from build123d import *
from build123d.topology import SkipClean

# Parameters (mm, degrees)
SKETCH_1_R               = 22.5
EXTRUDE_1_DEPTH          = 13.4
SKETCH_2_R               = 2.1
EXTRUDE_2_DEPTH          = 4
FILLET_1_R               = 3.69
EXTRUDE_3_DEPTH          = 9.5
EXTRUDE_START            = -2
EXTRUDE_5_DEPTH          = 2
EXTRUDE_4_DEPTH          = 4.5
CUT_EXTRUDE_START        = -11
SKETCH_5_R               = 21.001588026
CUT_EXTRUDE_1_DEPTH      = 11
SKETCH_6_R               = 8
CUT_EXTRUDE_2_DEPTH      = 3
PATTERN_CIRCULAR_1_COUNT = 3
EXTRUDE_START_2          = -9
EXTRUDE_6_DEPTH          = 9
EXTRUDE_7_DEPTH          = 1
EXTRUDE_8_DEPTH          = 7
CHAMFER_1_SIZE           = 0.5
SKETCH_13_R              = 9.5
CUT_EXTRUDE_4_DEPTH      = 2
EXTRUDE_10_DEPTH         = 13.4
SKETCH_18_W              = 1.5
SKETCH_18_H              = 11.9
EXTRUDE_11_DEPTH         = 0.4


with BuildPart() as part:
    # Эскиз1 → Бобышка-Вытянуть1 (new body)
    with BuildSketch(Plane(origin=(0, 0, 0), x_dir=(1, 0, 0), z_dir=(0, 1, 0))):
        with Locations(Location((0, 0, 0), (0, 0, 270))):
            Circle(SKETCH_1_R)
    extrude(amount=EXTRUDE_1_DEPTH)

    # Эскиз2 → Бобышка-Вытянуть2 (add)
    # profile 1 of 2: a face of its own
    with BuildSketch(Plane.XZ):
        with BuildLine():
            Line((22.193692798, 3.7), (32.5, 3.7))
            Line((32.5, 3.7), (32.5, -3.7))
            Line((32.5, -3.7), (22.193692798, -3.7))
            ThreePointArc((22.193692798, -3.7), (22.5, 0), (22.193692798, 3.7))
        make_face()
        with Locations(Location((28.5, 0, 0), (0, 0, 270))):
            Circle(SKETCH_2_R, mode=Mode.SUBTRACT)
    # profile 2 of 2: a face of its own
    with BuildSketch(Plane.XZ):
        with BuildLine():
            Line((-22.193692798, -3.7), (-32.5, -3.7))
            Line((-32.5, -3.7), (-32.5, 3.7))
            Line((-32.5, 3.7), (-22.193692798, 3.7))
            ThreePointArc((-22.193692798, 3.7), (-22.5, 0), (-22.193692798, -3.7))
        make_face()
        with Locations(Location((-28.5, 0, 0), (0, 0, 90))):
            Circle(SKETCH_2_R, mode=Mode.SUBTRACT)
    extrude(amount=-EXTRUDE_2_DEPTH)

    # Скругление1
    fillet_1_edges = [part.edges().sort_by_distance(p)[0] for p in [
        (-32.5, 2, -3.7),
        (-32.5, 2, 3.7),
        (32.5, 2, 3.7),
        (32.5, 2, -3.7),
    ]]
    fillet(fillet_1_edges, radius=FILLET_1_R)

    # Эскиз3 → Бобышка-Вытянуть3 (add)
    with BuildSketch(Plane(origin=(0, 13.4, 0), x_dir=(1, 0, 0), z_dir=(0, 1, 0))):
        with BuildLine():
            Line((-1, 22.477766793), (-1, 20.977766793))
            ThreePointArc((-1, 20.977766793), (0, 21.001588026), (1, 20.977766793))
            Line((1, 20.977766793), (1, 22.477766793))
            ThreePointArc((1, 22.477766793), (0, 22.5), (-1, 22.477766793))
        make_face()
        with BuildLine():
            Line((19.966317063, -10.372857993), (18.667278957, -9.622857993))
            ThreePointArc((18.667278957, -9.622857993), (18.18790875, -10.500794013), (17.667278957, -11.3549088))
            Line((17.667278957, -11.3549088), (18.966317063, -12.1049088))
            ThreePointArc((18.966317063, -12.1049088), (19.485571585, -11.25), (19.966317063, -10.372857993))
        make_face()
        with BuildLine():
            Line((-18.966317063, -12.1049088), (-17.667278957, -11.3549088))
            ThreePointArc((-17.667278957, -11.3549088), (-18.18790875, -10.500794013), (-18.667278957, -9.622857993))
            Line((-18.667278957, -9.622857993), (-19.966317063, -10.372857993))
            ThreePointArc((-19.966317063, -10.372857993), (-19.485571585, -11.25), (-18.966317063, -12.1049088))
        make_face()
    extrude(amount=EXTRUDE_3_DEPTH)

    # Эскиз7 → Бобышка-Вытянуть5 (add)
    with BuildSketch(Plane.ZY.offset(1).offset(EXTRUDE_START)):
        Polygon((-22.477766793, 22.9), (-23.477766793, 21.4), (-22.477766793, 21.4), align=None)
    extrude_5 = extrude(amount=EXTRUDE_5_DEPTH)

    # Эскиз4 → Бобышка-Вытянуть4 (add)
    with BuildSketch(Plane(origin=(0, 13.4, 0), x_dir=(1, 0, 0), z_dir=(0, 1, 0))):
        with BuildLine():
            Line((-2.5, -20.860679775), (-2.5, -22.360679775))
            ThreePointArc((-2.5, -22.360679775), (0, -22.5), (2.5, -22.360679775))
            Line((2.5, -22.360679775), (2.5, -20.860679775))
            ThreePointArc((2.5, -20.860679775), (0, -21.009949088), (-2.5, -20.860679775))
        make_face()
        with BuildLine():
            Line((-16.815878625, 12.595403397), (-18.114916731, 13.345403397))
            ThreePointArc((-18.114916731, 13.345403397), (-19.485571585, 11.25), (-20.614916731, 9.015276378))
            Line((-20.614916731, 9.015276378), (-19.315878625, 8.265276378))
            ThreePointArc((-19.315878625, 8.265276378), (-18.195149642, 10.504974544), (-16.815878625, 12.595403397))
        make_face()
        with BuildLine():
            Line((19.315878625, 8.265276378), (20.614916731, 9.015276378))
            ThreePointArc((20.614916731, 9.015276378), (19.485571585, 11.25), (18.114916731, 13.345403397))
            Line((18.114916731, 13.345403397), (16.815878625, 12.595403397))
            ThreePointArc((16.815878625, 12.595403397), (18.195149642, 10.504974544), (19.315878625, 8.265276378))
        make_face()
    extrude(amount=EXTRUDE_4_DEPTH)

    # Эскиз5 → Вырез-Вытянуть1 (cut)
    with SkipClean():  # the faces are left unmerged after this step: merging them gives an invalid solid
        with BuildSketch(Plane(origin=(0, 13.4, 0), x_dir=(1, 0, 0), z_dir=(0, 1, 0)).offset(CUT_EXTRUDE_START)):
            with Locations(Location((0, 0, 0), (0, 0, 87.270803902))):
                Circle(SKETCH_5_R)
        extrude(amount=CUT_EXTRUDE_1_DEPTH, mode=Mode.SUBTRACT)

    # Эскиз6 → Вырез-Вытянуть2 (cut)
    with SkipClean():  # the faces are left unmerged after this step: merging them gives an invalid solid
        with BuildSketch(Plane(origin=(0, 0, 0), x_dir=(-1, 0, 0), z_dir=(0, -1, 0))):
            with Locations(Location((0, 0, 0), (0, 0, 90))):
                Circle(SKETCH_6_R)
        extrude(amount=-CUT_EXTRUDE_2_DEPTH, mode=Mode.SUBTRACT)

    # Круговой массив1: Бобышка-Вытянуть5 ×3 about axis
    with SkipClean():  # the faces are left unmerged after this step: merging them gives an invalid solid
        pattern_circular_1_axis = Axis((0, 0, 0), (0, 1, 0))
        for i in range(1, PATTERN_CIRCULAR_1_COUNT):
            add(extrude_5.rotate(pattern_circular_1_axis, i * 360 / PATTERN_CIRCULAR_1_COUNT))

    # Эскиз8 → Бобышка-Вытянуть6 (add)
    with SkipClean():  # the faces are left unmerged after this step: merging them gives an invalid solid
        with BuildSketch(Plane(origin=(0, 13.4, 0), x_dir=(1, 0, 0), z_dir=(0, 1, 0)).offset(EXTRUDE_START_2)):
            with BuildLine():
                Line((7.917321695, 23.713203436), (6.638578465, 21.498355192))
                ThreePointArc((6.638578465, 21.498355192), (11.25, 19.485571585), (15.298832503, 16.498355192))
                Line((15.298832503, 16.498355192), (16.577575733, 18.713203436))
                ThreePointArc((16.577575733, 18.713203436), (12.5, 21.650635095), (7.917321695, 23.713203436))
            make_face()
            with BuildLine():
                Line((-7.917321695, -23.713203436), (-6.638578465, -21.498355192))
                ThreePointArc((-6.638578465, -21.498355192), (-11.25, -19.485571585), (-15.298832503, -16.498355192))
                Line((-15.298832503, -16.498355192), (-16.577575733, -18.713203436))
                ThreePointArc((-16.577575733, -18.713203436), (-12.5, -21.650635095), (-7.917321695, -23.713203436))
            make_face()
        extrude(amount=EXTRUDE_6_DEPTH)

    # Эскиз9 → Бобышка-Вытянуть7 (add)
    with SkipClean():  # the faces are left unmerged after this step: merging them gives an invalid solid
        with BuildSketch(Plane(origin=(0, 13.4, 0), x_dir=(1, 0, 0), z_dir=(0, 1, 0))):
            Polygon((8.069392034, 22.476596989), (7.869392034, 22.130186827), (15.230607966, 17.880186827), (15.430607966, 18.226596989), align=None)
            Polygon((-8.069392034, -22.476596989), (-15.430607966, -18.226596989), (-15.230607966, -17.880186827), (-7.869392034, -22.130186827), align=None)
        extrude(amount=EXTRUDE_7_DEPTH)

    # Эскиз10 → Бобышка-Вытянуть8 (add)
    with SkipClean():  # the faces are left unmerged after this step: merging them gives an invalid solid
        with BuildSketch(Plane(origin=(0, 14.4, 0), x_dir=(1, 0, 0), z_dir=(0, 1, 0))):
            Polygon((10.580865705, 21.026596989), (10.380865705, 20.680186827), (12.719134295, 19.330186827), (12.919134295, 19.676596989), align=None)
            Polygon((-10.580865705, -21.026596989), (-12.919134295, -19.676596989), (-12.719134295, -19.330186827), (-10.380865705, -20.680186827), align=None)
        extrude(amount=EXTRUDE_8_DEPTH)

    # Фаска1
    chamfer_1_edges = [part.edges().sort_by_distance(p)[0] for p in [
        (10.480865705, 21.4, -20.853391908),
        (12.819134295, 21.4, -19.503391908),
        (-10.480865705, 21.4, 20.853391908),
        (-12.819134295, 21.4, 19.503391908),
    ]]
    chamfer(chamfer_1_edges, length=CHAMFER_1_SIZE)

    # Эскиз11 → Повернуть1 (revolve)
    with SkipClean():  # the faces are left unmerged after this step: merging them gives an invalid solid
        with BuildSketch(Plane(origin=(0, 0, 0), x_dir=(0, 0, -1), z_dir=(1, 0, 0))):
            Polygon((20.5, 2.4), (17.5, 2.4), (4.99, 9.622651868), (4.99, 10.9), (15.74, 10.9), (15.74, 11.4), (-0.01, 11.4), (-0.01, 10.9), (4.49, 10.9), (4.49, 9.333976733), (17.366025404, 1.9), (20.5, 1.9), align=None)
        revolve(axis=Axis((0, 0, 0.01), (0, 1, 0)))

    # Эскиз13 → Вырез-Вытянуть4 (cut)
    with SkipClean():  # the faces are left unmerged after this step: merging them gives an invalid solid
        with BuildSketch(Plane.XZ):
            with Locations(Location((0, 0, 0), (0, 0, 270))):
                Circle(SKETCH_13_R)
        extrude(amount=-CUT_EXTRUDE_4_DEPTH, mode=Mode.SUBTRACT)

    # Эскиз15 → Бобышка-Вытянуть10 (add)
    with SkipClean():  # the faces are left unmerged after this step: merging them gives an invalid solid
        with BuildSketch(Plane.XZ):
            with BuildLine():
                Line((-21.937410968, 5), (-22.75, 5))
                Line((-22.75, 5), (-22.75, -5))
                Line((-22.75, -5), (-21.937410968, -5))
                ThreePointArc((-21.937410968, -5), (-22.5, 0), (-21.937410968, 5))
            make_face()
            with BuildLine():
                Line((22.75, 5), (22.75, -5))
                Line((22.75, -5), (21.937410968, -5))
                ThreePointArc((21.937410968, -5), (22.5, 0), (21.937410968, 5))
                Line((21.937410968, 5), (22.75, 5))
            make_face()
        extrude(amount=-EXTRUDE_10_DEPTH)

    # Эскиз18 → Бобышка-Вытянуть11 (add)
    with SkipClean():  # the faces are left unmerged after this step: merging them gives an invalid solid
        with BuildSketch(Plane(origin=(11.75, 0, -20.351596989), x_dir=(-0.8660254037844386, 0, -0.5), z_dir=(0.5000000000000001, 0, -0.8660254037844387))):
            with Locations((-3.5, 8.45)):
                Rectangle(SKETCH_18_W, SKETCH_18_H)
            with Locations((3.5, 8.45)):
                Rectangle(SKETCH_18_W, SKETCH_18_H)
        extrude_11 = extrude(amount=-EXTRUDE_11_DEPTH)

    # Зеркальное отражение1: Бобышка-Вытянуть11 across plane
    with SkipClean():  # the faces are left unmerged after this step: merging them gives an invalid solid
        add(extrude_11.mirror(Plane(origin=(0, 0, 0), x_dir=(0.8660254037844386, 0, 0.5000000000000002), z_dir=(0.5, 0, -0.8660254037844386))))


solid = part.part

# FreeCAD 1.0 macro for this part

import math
import FreeCAD as App
import Part
import Sketcher
Q = App.Units.Quantity


def edges_at(feature, points):
    """Names of the edges that pass closest to the given points."""
    edges = feature.Shape.Edges
    near = lambda p: min(range(len(edges)), key=lambda i: edges[i].distToShape(Part.Vertex(*p))[0])
    return sorted({f"Edge{near(p) + 1}" for p in points})


def add_polygon(sketch, points):
    """Adds a closed chain of lines whose ends are joined by coincident constraints."""
    first, n = sketch.GeometryCount, len(points)
    for a, b in zip(points, points[1:] + points[:1]):
        sketch.addGeometry(Part.LineSegment(App.Vector(*a, 0), App.Vector(*b, 0)), False)
    for i in range(n):
        sketch.addConstraint(Sketcher.Constraint("Coincident", first + i, 2, first + (i + 1) % n, 1))

doc = App.newDocument("Part")
body = doc.addObject("PartDesign::Body", "Body")

# Sketch on XZ plane
sketch1 = body.newObject("Sketcher::SketchObject", "Sketch")
sketch1.AttachmentSupport = (doc.getObject("XZ_Plane"), [""])
sketch1.MapMode = "FlatFace"
sketch1.addGeometry(Part.Circle(App.Vector(0, 0, 0), App.Vector(0, 0, 1), 22), False)
sketch1.addConstraint(Sketcher.Constraint("Coincident", 0, 3, -1, 1))
sketch1.addConstraint(Sketcher.Constraint("Diameter", 0, 45.0))
pad1 = body.newObject("PartDesign::Pad", "Pad")
pad1.Profile = sketch1
pad1.Length = 13.4
pad1.Reversed = True

# Sketch on XZ plane
sketch2 = body.newObject("Sketcher::SketchObject", "Sketch001")
sketch2.AttachmentSupport = (doc.getObject("XZ_Plane"), [""])
sketch2.MapMode = "FlatFace"
sketch2.addGeometry(Part.LineSegment(App.Vector(32.5, 3.7, 0), App.Vector(22.2, 3.7, 0)), False)
sketch2.addGeometry(Part.ArcOfCircle(Part.Circle(App.Vector(0, 0, 0), App.Vector(0, 0, 1), 22.5), math.radians(-9.46), math.radians(9.46)), False)
sketch2.addGeometry(Part.LineSegment(App.Vector(22.2, -3.7, 0), App.Vector(32.5, -3.7, 0)), False)
sketch2.addGeometry(Part.LineSegment(App.Vector(32.5, -3.7, 0), App.Vector(32.5, 3.7, 0)), False)
sketch2.addGeometry(Part.Circle(App.Vector(28.5, 0, 0), App.Vector(0, 0, 1), 2.1), False)
sketch2.addGeometry(Part.LineSegment(App.Vector(-32.5, -3.7, 0), App.Vector(-22.2, -3.7, 0)), False)
sketch2.addGeometry(Part.ArcOfCircle(Part.Circle(App.Vector(0, 0, 0), App.Vector(0, 0, 1), 22.5), math.radians(170.54), math.radians(189.46)), False)
sketch2.addGeometry(Part.LineSegment(App.Vector(-22.2, 3.7, 0), App.Vector(-32.5, 3.7, 0)), False)
sketch2.addGeometry(Part.LineSegment(App.Vector(-32.5, 3.7, 0), App.Vector(-32.5, -3.7, 0)), False)
sketch2.addGeometry(Part.Circle(App.Vector(-28.5, 0, 0), App.Vector(0, 0, 1), 2.1), False)
sketch2.addConstraint(Sketcher.Constraint("Coincident", 0, 2, 1, 2))
sketch2.addConstraint(Sketcher.Constraint("Coincident", 1, 1, 2, 1))
sketch2.addConstraint(Sketcher.Constraint("Coincident", 2, 2, 3, 1))
sketch2.addConstraint(Sketcher.Constraint("Coincident", 3, 2, 0, 1))
sketch2.addConstraint(Sketcher.Constraint("Coincident", 5, 2, 6, 2))
sketch2.addConstraint(Sketcher.Constraint("Coincident", 6, 1, 7, 1))
sketch2.addConstraint(Sketcher.Constraint("Coincident", 7, 2, 8, 1))
sketch2.addConstraint(Sketcher.Constraint("Coincident", 8, 2, 5, 1))
sketch2.addConstraint(Sketcher.Constraint("Horizontal", 0))
sketch2.addConstraint(Sketcher.Constraint("Horizontal", 2))
sketch2.addConstraint(Sketcher.Constraint("Vertical", 3))
sketch2.addConstraint(Sketcher.Constraint("Horizontal", 5))
sketch2.addConstraint(Sketcher.Constraint("Horizontal", 7))
sketch2.addConstraint(Sketcher.Constraint("Vertical", 8))
sketch2.addConstraint(Sketcher.Constraint("Coincident", 1, 3, -1, 1))
sketch2.addConstraint(Sketcher.Constraint("Coincident", 6, 3, -1, 1))
sketch2.addConstraint(Sketcher.Constraint("Equal", 1, 6))
sketch2.addConstraint(Sketcher.Constraint("Equal", 4, 9))
sketch2.addConstraint(Sketcher.Constraint("Symmetric", 4, 3, 9, 3, -1, 1))
sketch2.addConstraint(Sketcher.Constraint("Symmetric", 2, 2, 7, 2, -1, 1))
sketch2.addConstraint(Sketcher.Constraint("PointOnObject", 4, 3, -1))
sketch2.addConstraint(Sketcher.Constraint("Horizontal", 2, 2, 5, 2))
sketch2.addConstraint(Sketcher.Constraint("Horizontal", 3, 2, 6, 1))
sketch2.addConstraint(Sketcher.Constraint("Diameter", 4, 4.2))
sketch2.addConstraint(Sketcher.Constraint("Radius", 1, 22.5))
sketch2.addConstraint(Sketcher.Constraint("DistanceY", 3, 1, 3, 2, 7.4))
sketch2.addConstraint(Sketcher.Constraint("DistanceX", 9, 3, 4, 3, 57.0))
sketch2.addConstraint(Sketcher.Constraint("DistanceX", 4, 3, 2, 2, 4.0))
pad2 = body.newObject("PartDesign::Pad", "Pad001")
pad2.Profile = sketch2
pad2.Length = 4
pad2.Reversed = True
doc.recompute()

fillet = body.newObject("PartDesign::Fillet", "Fillet")
fillet.Base = (pad2, edges_at(pad2, [
    (-32.5, 2, -3.7),
    (-32.5, 2, 3.7),
    (32.5, 2, 3.7),
    (32.5, 2, -3.7),
]))
fillet.Radius = 3.69

# Sketch on XZ plane
sketch3 = body.newObject("Sketcher::SketchObject", "Sketch002")
sketch3.AttachmentSupport = (doc.getObject("XZ_Plane"), [""])
sketch3.MapMode = "FlatFace"
sketch3.AttachmentOffset = App.Placement(App.Vector(0, 0, -13.4), App.Rotation())
sketch3.addGeometry(Part.LineSegment(App.Vector(-1, -22.5, 0), App.Vector(-1, -21, 0)), False)
sketch3.addGeometry(Part.ArcOfCircle(Part.Circle(App.Vector(0, 0, 0), App.Vector(0, 0, 1), 21), math.radians(-92.73), math.radians(-87.27)), False)
sketch3.addGeometry(Part.LineSegment(App.Vector(1, -21, 0), App.Vector(1, -22.5, 0)), False)
sketch3.addGeometry(Part.ArcOfCircle(Part.Circle(App.Vector(0, 0, 0), App.Vector(0, 0, 1), 22.5), math.radians(-92.55), math.radians(-87.45)), False)
sketch3.addGeometry(Part.LineSegment(App.Vector(20, 10.4, 0), App.Vector(18.7, 9.6, 0)), False)
sketch3.addGeometry(Part.ArcOfCircle(Part.Circle(App.Vector(0, 0, 0), App.Vector(0, 0, 1), 21), math.radians(27.27), math.radians(32.73)), False)
sketch3.addGeometry(Part.LineSegment(App.Vector(17.7, 11.4, 0), App.Vector(19, 12.1, 0)), False)
sketch3.addGeometry(Part.ArcOfCircle(Part.Circle(App.Vector(0, 0, 0), App.Vector(0, 0, 1), 22.5), math.radians(27.45), math.radians(32.55)), False)
sketch3.addGeometry(Part.LineSegment(App.Vector(-19, 12.1, 0), App.Vector(-17.7, 11.4, 0)), False)
sketch3.addGeometry(Part.ArcOfCircle(Part.Circle(App.Vector(0, 0, 0), App.Vector(0, 0, 1), 21), math.radians(147.27), math.radians(152.73)), False)
sketch3.addGeometry(Part.LineSegment(App.Vector(-18.7, 9.6, 0), App.Vector(-20, 10.4, 0)), False)
sketch3.addGeometry(Part.ArcOfCircle(Part.Circle(App.Vector(0, 0, 0), App.Vector(0, 0, 1), 22.5), math.radians(147.45), math.radians(152.55)), False)
sketch3.addConstraint(Sketcher.Constraint("Coincident", 0, 2, 1, 1))
sketch3.addConstraint(Sketcher.Constraint("Coincident", 1, 2, 2, 1))
sketch3.addConstraint(Sketcher.Constraint("Coincident", 2, 2, 3, 2))
sketch3.addConstraint(Sketcher.Constraint("Coincident", 3, 1, 0, 1))
sketch3.addConstraint(Sketcher.Constraint("Coincident", 4, 2, 5, 1))
sketch3.addConstraint(Sketcher.Constraint("Coincident", 5, 2, 6, 1))
sketch3.addConstraint(Sketcher.Constraint("Coincident", 6, 2, 7, 2))
sketch3.addConstraint(Sketcher.Constraint("Coincident", 7, 1, 4, 1))
sketch3.addConstraint(Sketcher.Constraint("Coincident", 8, 2, 9, 1))
sketch3.addConstraint(Sketcher.Constraint("Coincident", 9, 2, 10, 1))
sketch3.addConstraint(Sketcher.Constraint("Coincident", 10, 2, 11, 2))
sketch3.addConstraint(Sketcher.Constraint("Coincident", 11, 1, 8, 1))
sketch3.addConstraint(Sketcher.Constraint("Vertical", 0))
sketch3.addConstraint(Sketcher.Constraint("Vertical", 2))
sketch3.addConstraint(Sketcher.Constraint("Coincident", 1, 3, -1, 1))
sketch3.addConstraint(Sketcher.Constraint("Coincident", 3, 3, -1, 1))
sketch3.addConstraint(Sketcher.Constraint("Coincident", 5, 3, -1, 1))
sketch3.addConstraint(Sketcher.Constraint("Coincident", 7, 3, -1, 1))
sketch3.addConstraint(Sketcher.Constraint("Coincident", 9, 3, -1, 1))
sketch3.addConstraint(Sketcher.Constraint("Coincident", 11, 3, -1, 1))
sketch3.addConstraint(Sketcher.Constraint("Equal", 1, 5))
sketch3.addConstraint(Sketcher.Constraint("Equal", 3, 7))
sketch3.addConstraint(Sketcher.Constraint("Equal", 5, 9))
sketch3.addConstraint(Sketcher.Constraint("Equal", 7, 11))
sketch3.addConstraint(Sketcher.Constraint("Parallel", 4, 6))
sketch3.addConstraint(Sketcher.Constraint("Parallel", 8, 10))
sketch3.addConstraint(Sketcher.Constraint("Horizontal", 0, 2, 1, 2))
sketch3.addConstraint(Sketcher.Constraint("Horizontal", 5, 2, 8, 2))
sketch3.addConstraint(Sketcher.Constraint("Horizontal", 4, 2, 9, 2))
sketch3.addConstraint(Sketcher.Constraint("Horizontal", 7, 1, 10, 2))
sketch3.addConstraint(Sketcher.Constraint("Equal", 4, 6))
sketch3.addConstraint(Sketcher.Constraint("Radius", 3, 22.5))
sketch3.addConstraint(Sketcher.Constraint("Angle", 4, Q("-150 deg")))
sketch3.addConstraint(Sketcher.Constraint("DistanceY", 0, 1, 0, 2, 1.5))
sketch3.addConstraint(Sketcher.Constraint("DistanceX", 0, 2, -1, 1, 1.0))
sketch3.addConstraint(Sketcher.Constraint("DistanceX", 5, 2, 4, 2, 1.0))
pad3 = body.newObject("PartDesign::Pad", "Pad002")
pad3.Profile = sketch3
pad3.Length = 9.5
pad3.Reversed = True

# Sketch on YZ plane
sketch4 = body.newObject("Sketcher::SketchObject", "Sketch003")
sketch4.AttachmentSupport = (doc.getObject("YZ_Plane"), [""])
sketch4.MapMode = "FlatFace"
sketch4.AttachmentOffset = App.Placement(App.Vector(0, 0, 1), App.Rotation())
add_polygon(sketch4, [(22.9, -22.5), (21.4, -23.5), (21.4, -22.5)])  # lines 0-2
sketch4.addConstraint(Sketcher.Constraint("Vertical", 1))
sketch4.addConstraint(Sketcher.Constraint("Horizontal", 2))
sketch4.addConstraint(Sketcher.Constraint("DistanceY", 1, 1, 1, 2, 1.0))
sketch4.addConstraint(Sketcher.Constraint("DistanceX", 2, 1, 2, 2, 1.5))
sketch4.addConstraint(Sketcher.Constraint("DistanceX", -1, 1, 0, 2, 21.4))
sketch4.addConstraint(Sketcher.Constraint("DistanceY", 0, 2, -1, 1, 23.477767))
pad4 = body.newObject("PartDesign::Pad", "Pad003")
pad4.Profile = sketch4
pad4.Length = 2
pad4.Reversed = True

# Sketch on XZ plane
sketch5 = body.newObject("Sketcher::SketchObject", "Sketch004")
sketch5.AttachmentSupport = (doc.getObject("XZ_Plane"), [""])
sketch5.MapMode = "FlatFace"
sketch5.AttachmentOffset = App.Placement(App.Vector(0, 0, -13.4), App.Rotation())
sketch5.addGeometry(Part.LineSegment(App.Vector(-2.5, 20.9, 0), App.Vector(-2.5, 22.4, 0)), False)
sketch5.addGeometry(Part.ArcOfCircle(Part.Circle(App.Vector(0, 0, 0), App.Vector(0, 0, 1), 22.5), math.radians(83.62), math.radians(96.38)), False)
sketch5.addGeometry(Part.LineSegment(App.Vector(2.5, 22.4, 0), App.Vector(2.5, 20.9, 0)), False)
sketch5.addGeometry(Part.ArcOfCircle(Part.Circle(App.Vector(0, 0, 0), App.Vector(0, 0, 1), 21), math.radians(83.17), math.radians(96.83)), False)
sketch5.addGeometry(Part.LineSegment(App.Vector(-16.8, -12.6, 0), App.Vector(-18.1, -13.3, 0)), False)
sketch5.addGeometry(Part.ArcOfCircle(Part.Circle(App.Vector(0, 0, 0), App.Vector(0, 0, 1), 22.5), math.radians(-156.38), math.radians(-143.62)), False)
sketch5.addGeometry(Part.LineSegment(App.Vector(-20.6, -9, 0), App.Vector(-19.3, -8.3, 0)), False)
sketch5.addGeometry(Part.ArcOfCircle(Part.Circle(App.Vector(0, 0, 0), App.Vector(0, 0, 1), 21), math.radians(-156.83), math.radians(-143.17)), False)
sketch5.addGeometry(Part.LineSegment(App.Vector(19.3, -8.3, 0), App.Vector(20.6, -9, 0)), False)
sketch5.addGeometry(Part.ArcOfCircle(Part.Circle(App.Vector(0, 0, 0), App.Vector(0, 0, 1), 22.5), math.radians(-36.38), math.radians(-23.62)), False)
sketch5.addGeometry(Part.LineSegment(App.Vector(18.1, -13.3, 0), App.Vector(16.8, -12.6, 0)), False)
sketch5.addGeometry(Part.ArcOfCircle(Part.Circle(App.Vector(0, 0, 0), App.Vector(0, 0, 1), 21), math.radians(-36.83), math.radians(-23.17)), False)
sketch5.addConstraint(Sketcher.Constraint("Coincident", 0, 2, 1, 2))
sketch5.addConstraint(Sketcher.Constraint("Coincident", 1, 1, 2, 1))
sketch5.addConstraint(Sketcher.Constraint("Coincident", 2, 2, 3, 1))
sketch5.addConstraint(Sketcher.Constraint("Coincident", 3, 2, 0, 1))
sketch5.addConstraint(Sketcher.Constraint("Coincident", 4, 2, 5, 2))
sketch5.addConstraint(Sketcher.Constraint("Coincident", 5, 1, 6, 1))
sketch5.addConstraint(Sketcher.Constraint("Coincident", 6, 2, 7, 1))
sketch5.addConstraint(Sketcher.Constraint("Coincident", 7, 2, 4, 1))
sketch5.addConstraint(Sketcher.Constraint("Coincident", 8, 2, 9, 2))
sketch5.addConstraint(Sketcher.Constraint("Coincident", 9, 1, 10, 1))
sketch5.addConstraint(Sketcher.Constraint("Coincident", 10, 2, 11, 1))
sketch5.addConstraint(Sketcher.Constraint("Coincident", 11, 2, 8, 1))
sketch5.addConstraint(Sketcher.Constraint("Vertical", 0))
sketch5.addConstraint(Sketcher.Constraint("Vertical", 2))
sketch5.addConstraint(Sketcher.Constraint("Coincident", 1, 3, -1, 1))
sketch5.addConstraint(Sketcher.Constraint("Coincident", 3, 3, -1, 1))
sketch5.addConstraint(Sketcher.Constraint("Coincident", 5, 3, -1, 1))
sketch5.addConstraint(Sketcher.Constraint("Coincident", 7, 3, -1, 1))
sketch5.addConstraint(Sketcher.Constraint("Coincident", 9, 3, -1, 1))
sketch5.addConstraint(Sketcher.Constraint("Coincident", 11, 3, -1, 1))
sketch5.addConstraint(Sketcher.Constraint("Equal", 1, 5))
sketch5.addConstraint(Sketcher.Constraint("Equal", 3, 7))
sketch5.addConstraint(Sketcher.Constraint("Equal", 5, 9))
sketch5.addConstraint(Sketcher.Constraint("Equal", 7, 11))
sketch5.addConstraint(Sketcher.Constraint("Parallel", 4, 6))
sketch5.addConstraint(Sketcher.Constraint("Parallel", 8, 10))
sketch5.addConstraint(Sketcher.Constraint("Horizontal", 0, 2, 1, 1))
sketch5.addConstraint(Sketcher.Constraint("Horizontal", 5, 1, 8, 2))
sketch5.addConstraint(Sketcher.Constraint("Horizontal", 4, 2, 9, 1))
sketch5.addConstraint(Sketcher.Constraint("Horizontal", 7, 2, 10, 2))
sketch5.addConstraint(Sketcher.Constraint("Equal", 4, 6))
sketch5.addConstraint(Sketcher.Constraint("Radius", 1, 22.5))
sketch5.addConstraint(Sketcher.Constraint("Angle", 4, Q("-150 deg")))
sketch5.addConstraint(Sketcher.Constraint("DistanceY", 0, 1, 0, 2, 1.5))
sketch5.addConstraint(Sketcher.Constraint("DistanceX", 0, 2, 1, 1, 5.0))
sketch5.addConstraint(Sketcher.Constraint("DistanceX", 5, 1, 4, 2, 2.5))
pad5 = body.newObject("PartDesign::Pad", "Pad004")
pad5.Profile = sketch5
pad5.Length = 4.5
pad5.Reversed = True

# Sketch on XZ plane
sketch6 = body.newObject("Sketcher::SketchObject", "Sketch005")
sketch6.AttachmentSupport = (doc.getObject("XZ_Plane"), [""])
sketch6.MapMode = "FlatFace"
sketch6.AttachmentOffset = App.Placement(App.Vector(0, 0, -2.4), App.Rotation())
sketch6.addGeometry(Part.Circle(App.Vector(0, 0, 0), App.Vector(0, 0, 1), 21), False)
sketch6.addConstraint(Sketcher.Constraint("Coincident", 0, 3, -1, 1))
sketch6.addConstraint(Sketcher.Constraint("Diameter", 0, 42.003176))
pocket1 = body.newObject("PartDesign::Pocket", "Pocket")
pocket1.Profile = sketch6
pocket1.Length = 11

# Sketch on XZ plane
sketch7 = body.newObject("Sketcher::SketchObject", "Sketch006")
sketch7.AttachmentSupport = (doc.getObject("XZ_Plane"), [""])
sketch7.MapMode = "FlatFace"
sketch7.addGeometry(Part.Circle(App.Vector(0, 0, 0), App.Vector(0, 0, 1), 8), False)
sketch7.addConstraint(Sketcher.Constraint("Coincident", 0, 3, -1, 1))
sketch7.addConstraint(Sketcher.Constraint("Diameter", 0, 16.0))
pocket2 = body.newObject("PartDesign::Pocket", "Pocket001")
pocket2.Profile = sketch7
pocket2.Length = 3
doc.recompute()

polarpattern = body.newObject("PartDesign::PolarPattern", "PolarPattern")
polarpattern.Originals = [pad4]
polarpattern.Axis = (doc.getObject("Y_Axis"), [""])
polarpattern.Angle = 360
polarpattern.Occurrences = 3
body.Tip = polarpattern

# Sketch on XZ plane
sketch8 = body.newObject("Sketcher::SketchObject", "Sketch007")
sketch8.AttachmentSupport = (doc.getObject("XZ_Plane"), [""])
sketch8.MapMode = "FlatFace"
sketch8.AttachmentOffset = App.Placement(App.Vector(0, 0, -4.4), App.Rotation())
sketch8.addGeometry(Part.LineSegment(App.Vector(7.9, -23.7, 0), App.Vector(6.6, -21.5, 0)), False)
sketch8.addGeometry(Part.ArcOfCircle(Part.Circle(App.Vector(0, 0, 0), App.Vector(0, 0, 1), 22.5), math.radians(-73), math.radians(-47)), False)
sketch8.addGeometry(Part.LineSegment(App.Vector(15.3, -16.5, 0), App.Vector(16.6, -18.7, 0)), False)
sketch8.addGeometry(Part.ArcOfCircle(Part.Circle(App.Vector(0, 0, 0), App.Vector(0, 0, 1), 25), math.radians(-72), math.radians(-48)), False)
sketch8.addGeometry(Part.LineSegment(App.Vector(-7.9, 23.7, 0), App.Vector(-6.6, 21.5, 0)), False)
sketch8.addGeometry(Part.ArcOfCircle(Part.Circle(App.Vector(0, 0, 0), App.Vector(0, 0, 1), 22.5), math.radians(107), math.radians(133)), False)
sketch8.addGeometry(Part.LineSegment(App.Vector(-15.3, 16.5, 0), App.Vector(-16.6, 18.7, 0)), False)
sketch8.addGeometry(Part.ArcOfCircle(Part.Circle(App.Vector(0, 0, 0), App.Vector(0, 0, 1), 25), math.radians(108), math.radians(132)), False)
sketch8.addConstraint(Sketcher.Constraint("Coincident", 0, 2, 1, 1))
sketch8.addConstraint(Sketcher.Constraint("Coincident", 1, 2, 2, 1))
sketch8.addConstraint(Sketcher.Constraint("Coincident", 2, 2, 3, 2))
sketch8.addConstraint(Sketcher.Constraint("Coincident", 3, 1, 0, 1))
sketch8.addConstraint(Sketcher.Constraint("Coincident", 4, 2, 5, 1))
sketch8.addConstraint(Sketcher.Constraint("Coincident", 5, 2, 6, 1))
sketch8.addConstraint(Sketcher.Constraint("Coincident", 6, 2, 7, 2))
sketch8.addConstraint(Sketcher.Constraint("Coincident", 7, 1, 4, 1))
sketch8.addConstraint(Sketcher.Constraint("Coincident", 1, 3, -1, 1))
sketch8.addConstraint(Sketcher.Constraint("Coincident", 3, 3, -1, 1))
sketch8.addConstraint(Sketcher.Constraint("Coincident", 5, 3, -1, 1))
sketch8.addConstraint(Sketcher.Constraint("Coincident", 7, 3, -1, 1))
sketch8.addConstraint(Sketcher.Constraint("Equal", 1, 5))
sketch8.addConstraint(Sketcher.Constraint("Equal", 3, 7))
sketch8.addConstraint(Sketcher.Constraint("Parallel", 0, 2))
sketch8.addConstraint(Sketcher.Constraint("Parallel", 2, 4))
sketch8.addConstraint(Sketcher.Constraint("Parallel", 4, 6))
sketch8.addConstraint(Sketcher.Constraint("Equal", 0, 2))
sketch8.addConstraint(Sketcher.Constraint("Equal", 2, 4))
sketch8.addConstraint(Sketcher.Constraint("Equal", 4, 6))
sketch8.addConstraint(Sketcher.Constraint("Radius", 3, 25.0))
sketch8.addConstraint(Sketcher.Constraint("Radius", 1, 22.5))
sketch8.addConstraint(Sketcher.Constraint("Angle", 0, Q("120 deg")))
sketch8.addConstraint(Sketcher.Constraint("DistanceY", 0, 2, 1, 2, 5.0))
pad6 = body.newObject("PartDesign::Pad", "Pad005")
pad6.Profile = sketch8
pad6.Length = 9
pad6.Reversed = True

# Sketch on XZ plane
sketch9 = body.newObject("Sketcher::SketchObject", "Sketch008")
sketch9.AttachmentSupport = (doc.getObject("XZ_Plane"), [""])
sketch9.MapMode = "FlatFace"
sketch9.AttachmentOffset = App.Placement(App.Vector(0, 0, -13.4), App.Rotation())
add_polygon(sketch9, [(8.07, -22.48), (7.87, -22.13), (15.23, -17.88), (15.43, -18.23)])  # lines 0-3
add_polygon(sketch9, [(-15.43, 18.23), (-8.07, 22.48), (-7.87, 22.13), (-15.23, 17.88)])  # lines 4-7
sketch9.addConstraint(Sketcher.Constraint("Symmetric", 3, 2, 4, 2, -1, 1))
sketch9.addConstraint(Sketcher.Constraint("Symmetric", 0, 2, 5, 2, -1, 1))
sketch9.addConstraint(Sketcher.Constraint("Symmetric", 1, 2, 6, 2, -1, 1))
sketch9.addConstraint(Sketcher.Constraint("Symmetric", 2, 2, 7, 2, -1, 1))
sketch9.addConstraint(Sketcher.Constraint("Perpendicular", 0, 1))
sketch9.addConstraint(Sketcher.Constraint("Perpendicular", 1, 2))
sketch9.addConstraint(Sketcher.Constraint("Perpendicular", 2, 3))
sketch9.addConstraint(Sketcher.Constraint("Angle", 0, Q("120 deg")))
sketch9.addConstraint(Sketcher.Constraint("Distance", 0, 0.4))
sketch9.addConstraint(Sketcher.Constraint("Distance", 1, 8.5))
sketch9.addConstraint(Sketcher.Constraint("DistanceX", 4, 2, 1, 2, 23.3))
sketch9.addConstraint(Sketcher.Constraint("DistanceY", 0, 2, -1, 1, 22.130187))
pad7 = body.newObject("PartDesign::Pad", "Pad006")
pad7.Profile = sketch9
pad7.Length = 1
pad7.Reversed = True

# Sketch on XZ plane
sketch10 = body.newObject("Sketcher::SketchObject", "Sketch009")
sketch10.AttachmentSupport = (doc.getObject("XZ_Plane"), [""])
sketch10.MapMode = "FlatFace"
sketch10.AttachmentOffset = App.Placement(App.Vector(0, 0, -14.4), App.Rotation())
add_polygon(sketch10, [(10.58, -21.03), (10.38, -20.68), (12.72, -19.33), (12.92, -19.68)])  # lines 0-3
add_polygon(sketch10, [(-12.92, 19.68), (-10.58, 21.03), (-10.38, 20.68), (-12.72, 19.33)])  # lines 4-7
sketch10.addConstraint(Sketcher.Constraint("Symmetric", 3, 2, 4, 2, -1, 1))
sketch10.addConstraint(Sketcher.Constraint("Symmetric", 0, 2, 5, 2, -1, 1))
sketch10.addConstraint(Sketcher.Constraint("Symmetric", 1, 2, 6, 2, -1, 1))
sketch10.addConstraint(Sketcher.Constraint("Symmetric", 2, 2, 7, 2, -1, 1))
sketch10.addConstraint(Sketcher.Constraint("Perpendicular", 0, 1))
sketch10.addConstraint(Sketcher.Constraint("Perpendicular", 1, 2))
sketch10.addConstraint(Sketcher.Constraint("Perpendicular", 2, 3))
sketch10.addConstraint(Sketcher.Constraint("Angle", 0, Q("120 deg")))
sketch10.addConstraint(Sketcher.Constraint("Distance", 0, 0.4))
sketch10.addConstraint(Sketcher.Constraint("Distance", 1, 2.7))
sketch10.addConstraint(Sketcher.Constraint("DistanceX", 4, 2, 1, 2, 23.3))
sketch10.addConstraint(Sketcher.Constraint("DistanceY", 0, 2, -1, 1, 20.680187))
pad8 = body.newObject("PartDesign::Pad", "Pad007")
pad8.Profile = sketch10
pad8.Length = 7
pad8.Reversed = True
doc.recompute()

chamfer = body.newObject("PartDesign::Chamfer", "Chamfer")
chamfer.Base = (pad8, edges_at(pad8, [
    (10.481, 21.4, -20.853),
    (12.819, 21.4, -19.503),
    (-10.481, 21.4, 20.853),
    (-12.819, 21.4, 19.503),
]))
chamfer.Size = 0.5

# Sketch on YZ plane
sketch11 = body.newObject("Sketcher::SketchObject", "Sketch010")
sketch11.AttachmentSupport = (doc.getObject("YZ_Plane"), [""])
sketch11.MapMode = "FlatFace"
add_polygon(sketch11, [(2.4, -20.5), (2.4, -17.5), (9.6, -5), (10.9, -5), (10.9, -15.7), (11.4, -15.7), (11.4, 0), (10.9, 0), (10.9, -4.5), (9.3, -4.5), (1.9, -17.4), (1.9, -20.5)])  # lines 0-11
sketch11.addGeometry(Part.LineSegment(App.Vector(1.9, 0, 0), App.Vector(11.4, 0, 0)), True)  # axis
sketch11.addConstraint(Sketcher.Constraint("Vertical", 0))
sketch11.addConstraint(Sketcher.Constraint("Horizontal", 2))
sketch11.addConstraint(Sketcher.Constraint("Vertical", 3))
sketch11.addConstraint(Sketcher.Constraint("Horizontal", 4))
sketch11.addConstraint(Sketcher.Constraint("Vertical", 5))
sketch11.addConstraint(Sketcher.Constraint("Horizontal", 6))
sketch11.addConstraint(Sketcher.Constraint("Vertical", 7))
sketch11.addConstraint(Sketcher.Constraint("Horizontal", 8))
sketch11.addConstraint(Sketcher.Constraint("Vertical", 10))
sketch11.addConstraint(Sketcher.Constraint("Horizontal", 11))
sketch11.addConstraint(Sketcher.Constraint("Horizontal", 12))
sketch11.addConstraint(Sketcher.Constraint("Coincident", 12, 2, 5, 2))
sketch11.addConstraint(Sketcher.Constraint("Parallel", 1, 9))
sketch11.addConstraint(Sketcher.Constraint("Vertical", 3, 2, 6, 2))
sketch11.addConstraint(Sketcher.Constraint("Vertical", 10, 2, 12, 1))
sketch11.addConstraint(Sketcher.Constraint("Equal", 6, 11))
sketch11.addConstraint(Sketcher.Constraint("DistanceY", 0, 1, 0, 2, 3.0))
sketch11.addConstraint(Sketcher.Constraint("Angle", 1, Q("60 deg")))
sketch11.addConstraint(Sketcher.Constraint("DistanceX", 4, 1, 4, 2, 0.5))
sketch11.addConstraint(Sketcher.Constraint("DistanceX", 12, 1, 12, 2, 9.5))
sketch11.addConstraint(Sketcher.Constraint("DistanceY", 7, 2, 7, 1, 4.5))
sketch11.addConstraint(Sketcher.Constraint("DistanceY", 2, 2, 5, 2, 5.0))
sketch11.addConstraint(Sketcher.Constraint("DistanceY", 3, 2, 3, 1, 10.75))
sketch11.addConstraint(Sketcher.Constraint("DistanceX", -1, 1, 0, 2, 2.4))
sketch11.addConstraint(Sketcher.Constraint("DistanceY", 0, 2, -1, 1, 17.5))
sketch11.addConstraint(Sketcher.Constraint("DistanceY", 1, 2, -1, 1, 4.99))
sketch11.addConstraint(Sketcher.Constraint("DistanceX", 8, 2, 8, 1, 1.566023))
revolution = body.newObject("PartDesign::Revolution", "Revolution")
revolution.Profile = sketch11
revolution.ReferenceAxis = (sketch11, ["Axis0"])
revolution.Angle = 360

# Sketch on XZ plane
sketch12 = body.newObject("Sketcher::SketchObject", "Sketch011")
sketch12.AttachmentSupport = (doc.getObject("XZ_Plane"), [""])
sketch12.MapMode = "FlatFace"
sketch12.addGeometry(Part.Circle(App.Vector(0, 0, 0), App.Vector(0, 0, 1), 10), False)
sketch12.addConstraint(Sketcher.Constraint("Coincident", 0, 3, -1, 1))
sketch12.addConstraint(Sketcher.Constraint("Diameter", 0, 19.0))
pocket3 = body.newObject("PartDesign::Pocket", "Pocket002")
pocket3.Profile = sketch12
pocket3.Length = 2

# Sketch on XZ plane
sketch13 = body.newObject("Sketcher::SketchObject", "Sketch012")
sketch13.AttachmentSupport = (doc.getObject("XZ_Plane"), [""])
sketch13.MapMode = "FlatFace"
sketch13.addGeometry(Part.LineSegment(App.Vector(-21.9, 5, 0), App.Vector(-22.8, 5, 0)), False)
sketch13.addGeometry(Part.LineSegment(App.Vector(-22.8, 5, 0), App.Vector(-22.8, -5, 0)), False)
sketch13.addGeometry(Part.LineSegment(App.Vector(-22.8, -5, 0), App.Vector(-21.9, -5, 0)), False)
sketch13.addGeometry(Part.ArcOfCircle(Part.Circle(App.Vector(0, 0, 0), App.Vector(0, 0, 1), 22.5), math.radians(167), math.radians(193)), False)
sketch13.addGeometry(Part.LineSegment(App.Vector(22.8, -5, 0), App.Vector(22.8, 5, 0)), False)
sketch13.addGeometry(Part.LineSegment(App.Vector(22.8, 5, 0), App.Vector(21.9, 5, 0)), False)
sketch13.addGeometry(Part.ArcOfCircle(Part.Circle(App.Vector(0, 0, 0), App.Vector(0, 0, 1), 22.5), math.radians(-13), math.radians(13)), False)
sketch13.addGeometry(Part.LineSegment(App.Vector(21.9, -5, 0), App.Vector(22.8, -5, 0)), False)
sketch13.addConstraint(Sketcher.Constraint("Coincident", 0, 2, 1, 1))
sketch13.addConstraint(Sketcher.Constraint("Coincident", 1, 2, 2, 1))
sketch13.addConstraint(Sketcher.Constraint("Coincident", 2, 2, 3, 2))
sketch13.addConstraint(Sketcher.Constraint("Coincident", 3, 1, 0, 1))
sketch13.addConstraint(Sketcher.Constraint("Coincident", 4, 2, 5, 1))
sketch13.addConstraint(Sketcher.Constraint("Coincident", 5, 2, 6, 2))
sketch13.addConstraint(Sketcher.Constraint("Coincident", 6, 1, 7, 1))
sketch13.addConstraint(Sketcher.Constraint("Coincident", 7, 2, 4, 1))
sketch13.addConstraint(Sketcher.Constraint("Horizontal", 0))
sketch13.addConstraint(Sketcher.Constraint("Vertical", 1))
sketch13.addConstraint(Sketcher.Constraint("Horizontal", 2))
sketch13.addConstraint(Sketcher.Constraint("Vertical", 4))
sketch13.addConstraint(Sketcher.Constraint("Horizontal", 5))
sketch13.addConstraint(Sketcher.Constraint("Horizontal", 7))
sketch13.addConstraint(Sketcher.Constraint("Coincident", 3, 3, -1, 1))
sketch13.addConstraint(Sketcher.Constraint("Coincident", 6, 3, -1, 1))
sketch13.addConstraint(Sketcher.Constraint("Equal", 3, 6))
sketch13.addConstraint(Sketcher.Constraint("Symmetric", 1, 2, 4, 2, -1, 1))
sketch13.addConstraint(Sketcher.Constraint("Horizontal", 3, 1, 4, 2))
sketch13.addConstraint(Sketcher.Constraint("Horizontal", 2, 2, 6, 1))
sketch13.addConstraint(Sketcher.Constraint("Radius", 3, 22.5))
sketch13.addConstraint(Sketcher.Constraint("DistanceY", 1, 2, 1, 1, 10.0))
sketch13.addConstraint(Sketcher.Constraint("DistanceX", 0, 2, 4, 2, 45.5))
pad9 = body.newObject("PartDesign::Pad", "Pad008")
pad9.Profile = sketch13
pad9.Length = 13.4
pad9.Reversed = True

# Sketch on an angled plane
sketch14 = body.newObject("Sketcher::SketchObject", "Sketch013")
sketch14.Placement = App.Placement(App.Vector(11.75, 0, -20.351597), App.Rotation(App.Vector(-0.866025404, 0, -0.5), App.Vector(0, 1, 0), App.Vector(0.5, 0, -0.866025404), "ZXY"))
add_polygon(sketch14, [(-4.3, 14.4), (-4.3, 2.5), (-2.8, 2.5), (-2.8, 14.4)])  # lines 0-3
add_polygon(sketch14, [(2.8, 14.4), (2.8, 2.5), (4.3, 2.5), (4.3, 14.4)])  # lines 4-7
sketch14.addConstraint(Sketcher.Constraint("Vertical", 0))
sketch14.addConstraint(Sketcher.Constraint("Horizontal", 1))
sketch14.addConstraint(Sketcher.Constraint("Vertical", 2))
sketch14.addConstraint(Sketcher.Constraint("Horizontal", 3))
sketch14.addConstraint(Sketcher.Constraint("Vertical", 4))
sketch14.addConstraint(Sketcher.Constraint("Horizontal", 5))
sketch14.addConstraint(Sketcher.Constraint("Vertical", 6))
sketch14.addConstraint(Sketcher.Constraint("Horizontal", 7))
sketch14.addConstraint(Sketcher.Constraint("Symmetric", 1, 2, 4, 2, -2))
sketch14.addConstraint(Sketcher.Constraint("Symmetric", 3, 2, 6, 2, -2))
sketch14.addConstraint(Sketcher.Constraint("DistanceX", 1, 1, 1, 2, 1.5))
sketch14.addConstraint(Sketcher.Constraint("DistanceY", 0, 2, 0, 1, 11.9))
sketch14.addConstraint(Sketcher.Constraint("DistanceX", 0, 2, 4, 2, 7.0))
sketch14.addConstraint(Sketcher.Constraint("DistanceY", -1, 1, 0, 2, 2.5))
pad10 = body.newObject("PartDesign::Pad", "Pad009")
pad10.Profile = sketch14
pad10.Length = 0.4
pad10.Reversed = True
doc.recompute()

datumplane = body.newObject("PartDesign::Plane", "DatumPlane")
datumplane.Placement = App.Placement(App.Vector(0, 0, 0), App.Rotation(App.Vector(0.866025404, 0, 0.5), App.Vector(0, -1, 0), App.Vector(0.5, 0, -0.866025404), "ZXY"))
mirrored = body.newObject("PartDesign::Mirrored", "Mirrored")
mirrored.Originals = [pad10]
mirrored.MirrorPlane = (datumplane, [""])
body.Tip = mirrored

doc.recompute()
